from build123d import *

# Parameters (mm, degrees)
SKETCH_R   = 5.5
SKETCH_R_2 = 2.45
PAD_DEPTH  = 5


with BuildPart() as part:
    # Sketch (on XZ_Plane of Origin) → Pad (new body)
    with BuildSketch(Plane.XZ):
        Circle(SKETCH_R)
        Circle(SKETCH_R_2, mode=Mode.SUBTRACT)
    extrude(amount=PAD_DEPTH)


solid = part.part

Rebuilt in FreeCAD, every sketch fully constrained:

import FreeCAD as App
import Part
import Sketcher

doc = App.newDocument("Part")
body = doc.addObject("PartDesign::Body", "Body")

# Sketch on XZ plane
sketch1 = body.newObject("Sketcher::SketchObject", "Sketch")
sketch1.AttachmentSupport = (doc.getObject("XZ_Plane"), [""])
sketch1.MapMode = "FlatFace"
sketch1.addGeometry([
    Part.Circle(App.Vector(0, 0, 0), App.Vector(0, 0, 1), 5.5),
    Part.Circle(App.Vector(0, 0, 0), App.Vector(0, 0, 1), 2.45),
], False)
sketch1.addConstraint([
    Sketcher.Constraint("Coincident", 0, 3, -1, 1),
    Sketcher.Constraint("Coincident", 1, 3, -1, 1),
    Sketcher.Constraint("Diameter", 0, 11.0),
    Sketcher.Constraint("Diameter", 1, 4.9),
])
pad1 = body.newObject("PartDesign::Pad", "Pad")
pad1.Profile = sketch1
pad1.Length = 5

doc.recompute()
